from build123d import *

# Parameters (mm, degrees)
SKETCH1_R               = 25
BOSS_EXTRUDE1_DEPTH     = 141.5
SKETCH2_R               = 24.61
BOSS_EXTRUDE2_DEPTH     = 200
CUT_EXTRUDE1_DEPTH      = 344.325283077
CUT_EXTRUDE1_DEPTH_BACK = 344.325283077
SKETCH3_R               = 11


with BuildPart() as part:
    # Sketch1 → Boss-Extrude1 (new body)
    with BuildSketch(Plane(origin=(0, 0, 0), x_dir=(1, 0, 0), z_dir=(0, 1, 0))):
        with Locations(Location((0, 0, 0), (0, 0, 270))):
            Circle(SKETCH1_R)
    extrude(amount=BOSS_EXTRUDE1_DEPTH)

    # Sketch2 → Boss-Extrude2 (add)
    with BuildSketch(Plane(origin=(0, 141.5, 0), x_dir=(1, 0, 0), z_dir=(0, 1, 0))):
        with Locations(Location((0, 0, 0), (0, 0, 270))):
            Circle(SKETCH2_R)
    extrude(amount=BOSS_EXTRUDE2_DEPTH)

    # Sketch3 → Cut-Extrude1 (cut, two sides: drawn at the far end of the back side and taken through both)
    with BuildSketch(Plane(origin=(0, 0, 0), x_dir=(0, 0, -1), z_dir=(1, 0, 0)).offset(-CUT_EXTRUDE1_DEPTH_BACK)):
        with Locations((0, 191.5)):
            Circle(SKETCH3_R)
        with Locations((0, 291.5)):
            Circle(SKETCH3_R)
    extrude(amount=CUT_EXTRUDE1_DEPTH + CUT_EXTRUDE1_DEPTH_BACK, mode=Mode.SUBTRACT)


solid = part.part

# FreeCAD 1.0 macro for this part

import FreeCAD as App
import Part
import Sketcher
from FreeCAD import Vector
Q = App.Units.Quantity

doc = App.newDocument("Part")
body = doc.addObject("PartDesign::Body", "Body")

# Sketch on XZ plane
sketch1 = body.newObject("Sketcher::SketchObject", "Sketch")
sketch1.AttachmentSupport = (doc.getObject("XZ_Plane"), [""])
sketch1.MapMode = "FlatFace"
sketch1.addGeometry(Part.Circle(Vector(0, 0, 0), Vector(0, 0, 1), 25), False)
sketch1.addConstraint(Sketcher.Constraint("Coincident", 0, 3, -1, 1))
sketch1.addConstraint(Sketcher.Constraint("Diameter", 0, Q("50 mm")))
pad1 = body.newObject("PartDesign::Pad", "Pad")
pad1.Profile = sketch1
pad1.Length = 141.5
pad1.Reversed = True

# Sketch on XZ plane
sketch2 = body.newObject("Sketcher::SketchObject", "Sketch001")
sketch2.AttachmentSupport = (doc.getObject("XZ_Plane"), [""])
sketch2.MapMode = "FlatFace"
sketch2.AttachmentOffset = App.Placement(Vector(0, 0, -141.5), App.Rotation())
sketch2.addGeometry(Part.Circle(Vector(0, 0, 0), Vector(0, 0, 1), 24.61), False)
sketch2.addConstraint(Sketcher.Constraint("Coincident", 0, 3, -1, 1))
sketch2.addConstraint(Sketcher.Constraint("Diameter", 0, Q("49.22 mm")))
pad2 = body.newObject("PartDesign::Pad", "Pad001")
pad2.Profile = sketch2
pad2.Length = 200
pad2.Reversed = True

# Sketch on YZ plane
sketch3 = body.newObject("Sketcher::SketchObject", "Sketch002")
sketch3.AttachmentSupport = (doc.getObject("YZ_Plane"), [""])
sketch3.MapMode = "FlatFace"
sketch3.addGeometry(Part.Circle(Vector(191.5, 0, 0), Vector(0, 0, 1), 11), False)
sketch3.addGeometry(Part.Circle(Vector(291.5, 0, 0), Vector(0, 0, 1), 11), False)
sketch3.addConstraint(Sketcher.Constraint("Equal", 0, 1))
sketch3.addConstraint(Sketcher.Constraint("PointOnObject", 0, 3, -1))
sketch3.addConstraint(Sketcher.Constraint("PointOnObject", 1, 3, -1))
sketch3.addConstraint(Sketcher.Constraint("Diameter", 0, Q("22 mm")))
sketch3.addConstraint(Sketcher.Constraint("DistanceX", 0, 3, 1, 3, Q("100 mm")))
sketch3.addConstraint(Sketcher.Constraint("DistanceX", -1, 1, 0, 3, Q("191.5 mm")))
pocket1 = body.newObject("PartDesign::Pocket", "Pocket")
pocket1.Profile = sketch3
pocket1.Type = "ThroughAll"
pocket1.Midplane = True

doc.recompute()
